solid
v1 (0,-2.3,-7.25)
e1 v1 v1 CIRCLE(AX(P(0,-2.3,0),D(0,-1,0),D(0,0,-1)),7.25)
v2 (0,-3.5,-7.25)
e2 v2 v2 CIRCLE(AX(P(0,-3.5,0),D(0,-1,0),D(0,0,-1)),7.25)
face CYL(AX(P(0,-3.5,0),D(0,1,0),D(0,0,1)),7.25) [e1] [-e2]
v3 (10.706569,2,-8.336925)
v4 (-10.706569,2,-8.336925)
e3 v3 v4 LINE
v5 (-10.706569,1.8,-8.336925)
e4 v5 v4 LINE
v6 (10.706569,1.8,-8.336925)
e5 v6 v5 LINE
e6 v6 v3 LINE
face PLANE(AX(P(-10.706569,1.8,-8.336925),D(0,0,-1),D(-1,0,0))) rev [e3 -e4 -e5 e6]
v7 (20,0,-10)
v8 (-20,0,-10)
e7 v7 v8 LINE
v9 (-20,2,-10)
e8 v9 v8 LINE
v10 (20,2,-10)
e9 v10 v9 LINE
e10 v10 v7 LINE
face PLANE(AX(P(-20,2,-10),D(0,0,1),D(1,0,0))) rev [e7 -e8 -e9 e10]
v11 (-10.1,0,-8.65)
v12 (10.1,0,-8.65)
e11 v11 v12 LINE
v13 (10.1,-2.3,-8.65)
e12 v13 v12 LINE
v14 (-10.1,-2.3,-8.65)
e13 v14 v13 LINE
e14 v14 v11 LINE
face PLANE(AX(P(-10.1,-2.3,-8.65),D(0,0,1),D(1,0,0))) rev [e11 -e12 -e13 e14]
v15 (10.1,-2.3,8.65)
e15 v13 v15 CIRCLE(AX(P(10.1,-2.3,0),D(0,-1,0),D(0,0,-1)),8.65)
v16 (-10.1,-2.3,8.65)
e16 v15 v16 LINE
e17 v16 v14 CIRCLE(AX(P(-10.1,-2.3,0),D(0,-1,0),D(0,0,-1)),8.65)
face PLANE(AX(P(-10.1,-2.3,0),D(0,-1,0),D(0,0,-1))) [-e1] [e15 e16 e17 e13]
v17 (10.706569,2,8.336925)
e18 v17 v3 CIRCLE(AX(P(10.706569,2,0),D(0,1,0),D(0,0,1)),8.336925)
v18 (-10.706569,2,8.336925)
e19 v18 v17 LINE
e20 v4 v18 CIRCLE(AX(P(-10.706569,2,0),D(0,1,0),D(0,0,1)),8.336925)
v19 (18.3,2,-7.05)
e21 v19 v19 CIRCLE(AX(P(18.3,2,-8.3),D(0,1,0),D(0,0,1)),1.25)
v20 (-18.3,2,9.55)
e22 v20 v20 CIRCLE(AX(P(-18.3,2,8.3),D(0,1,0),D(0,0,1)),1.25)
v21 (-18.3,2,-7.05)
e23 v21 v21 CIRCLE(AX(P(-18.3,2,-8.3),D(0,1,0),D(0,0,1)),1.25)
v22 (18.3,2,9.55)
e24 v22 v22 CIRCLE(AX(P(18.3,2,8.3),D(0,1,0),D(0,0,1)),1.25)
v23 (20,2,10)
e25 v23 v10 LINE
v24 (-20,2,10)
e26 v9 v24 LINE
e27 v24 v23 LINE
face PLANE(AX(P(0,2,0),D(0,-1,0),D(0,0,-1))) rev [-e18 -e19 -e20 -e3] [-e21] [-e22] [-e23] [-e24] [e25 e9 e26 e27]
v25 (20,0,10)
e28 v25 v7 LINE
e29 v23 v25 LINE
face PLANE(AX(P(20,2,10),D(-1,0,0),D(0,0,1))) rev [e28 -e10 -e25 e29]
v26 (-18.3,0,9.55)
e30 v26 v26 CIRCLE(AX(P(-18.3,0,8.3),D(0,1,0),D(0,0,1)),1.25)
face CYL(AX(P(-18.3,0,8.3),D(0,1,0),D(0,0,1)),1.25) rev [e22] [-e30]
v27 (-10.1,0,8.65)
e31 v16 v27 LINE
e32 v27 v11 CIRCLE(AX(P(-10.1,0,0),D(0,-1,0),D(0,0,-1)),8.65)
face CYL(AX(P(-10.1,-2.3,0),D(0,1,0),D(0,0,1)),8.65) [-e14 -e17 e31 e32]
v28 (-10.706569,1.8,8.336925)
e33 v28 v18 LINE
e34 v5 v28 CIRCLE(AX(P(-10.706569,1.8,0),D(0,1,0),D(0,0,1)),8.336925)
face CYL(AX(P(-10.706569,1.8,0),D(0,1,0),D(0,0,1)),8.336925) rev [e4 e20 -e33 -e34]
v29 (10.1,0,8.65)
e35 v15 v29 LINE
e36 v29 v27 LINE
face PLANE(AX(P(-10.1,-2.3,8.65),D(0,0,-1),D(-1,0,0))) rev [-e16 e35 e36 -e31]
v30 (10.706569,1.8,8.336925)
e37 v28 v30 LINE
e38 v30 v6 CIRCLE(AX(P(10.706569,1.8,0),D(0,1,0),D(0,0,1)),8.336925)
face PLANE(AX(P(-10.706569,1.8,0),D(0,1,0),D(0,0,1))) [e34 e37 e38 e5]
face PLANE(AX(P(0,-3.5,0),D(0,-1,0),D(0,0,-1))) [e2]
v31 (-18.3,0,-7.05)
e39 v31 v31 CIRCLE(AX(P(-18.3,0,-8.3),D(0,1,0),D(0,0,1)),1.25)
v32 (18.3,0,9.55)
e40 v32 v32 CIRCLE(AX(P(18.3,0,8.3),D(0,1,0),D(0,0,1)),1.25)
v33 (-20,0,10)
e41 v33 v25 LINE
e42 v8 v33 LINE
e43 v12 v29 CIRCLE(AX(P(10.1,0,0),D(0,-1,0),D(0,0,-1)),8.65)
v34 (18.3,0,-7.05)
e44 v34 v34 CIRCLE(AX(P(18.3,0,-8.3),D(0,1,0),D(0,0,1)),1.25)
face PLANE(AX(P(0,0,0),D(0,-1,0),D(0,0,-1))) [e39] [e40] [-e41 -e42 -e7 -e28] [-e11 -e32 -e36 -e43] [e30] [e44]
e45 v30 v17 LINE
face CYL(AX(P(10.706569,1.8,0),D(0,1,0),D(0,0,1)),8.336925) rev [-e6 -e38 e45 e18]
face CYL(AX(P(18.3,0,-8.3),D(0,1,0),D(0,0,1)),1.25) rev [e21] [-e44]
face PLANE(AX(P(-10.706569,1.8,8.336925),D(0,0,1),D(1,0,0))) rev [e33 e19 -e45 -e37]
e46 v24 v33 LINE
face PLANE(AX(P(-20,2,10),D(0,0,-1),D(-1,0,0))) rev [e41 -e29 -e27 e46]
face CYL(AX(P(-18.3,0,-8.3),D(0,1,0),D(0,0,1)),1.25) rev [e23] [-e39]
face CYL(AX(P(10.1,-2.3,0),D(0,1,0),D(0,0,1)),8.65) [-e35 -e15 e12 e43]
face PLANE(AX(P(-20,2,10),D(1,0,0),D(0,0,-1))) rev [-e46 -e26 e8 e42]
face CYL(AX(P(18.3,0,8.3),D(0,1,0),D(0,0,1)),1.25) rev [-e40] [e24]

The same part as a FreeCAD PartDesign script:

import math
import FreeCAD as App
import Part
import Sketcher
Q = App.Units.Quantity

doc = App.newDocument("Part")
body = doc.addObject("PartDesign::Body", "Body")

# Sketch on XZ plane
sketch1 = doc.addObject("Sketcher::SketchObject", "Sketch")
body.addObject(sketch1)
sketch1.AttachmentSupport = (doc.XZ_Plane, [""])
sketch1.MapMode = "FlatFace"
sketch1.addGeometry(Part.LineSegment(App.Vector(-20, -10, 0), App.Vector(-20, 10, 0)), False)
sketch1.addGeometry(Part.LineSegment(App.Vector(-20, 10, 0), App.Vector(20, 10, 0)), False)
sketch1.addGeometry(Part.LineSegment(App.Vector(20, 10, 0), App.Vector(20, -10, 0)), False)
sketch1.addGeometry(Part.LineSegment(App.Vector(20, -10, 0), App.Vector(-20, -10, 0)), False)
sketch1.addConstraint(Sketcher.Constraint("Coincident", 0, 2, 1, 1))
sketch1.addConstraint(Sketcher.Constraint("Coincident", 1, 2, 2, 1))
sketch1.addConstraint(Sketcher.Constraint("Coincident", 2, 2, 3, 1))
sketch1.addConstraint(Sketcher.Constraint("Coincident", 3, 2, 0, 1))
sketch1.addConstraint(Sketcher.Constraint("Vertical", 0))
sketch1.addConstraint(Sketcher.Constraint("Horizontal", 1))
sketch1.addConstraint(Sketcher.Constraint("Vertical", 2))
sketch1.addConstraint(Sketcher.Constraint("Horizontal", 3))
sketch1.addConstraint(Sketcher.Constraint("Symmetric", 0, 2, 2, 2, -1, 1))
sketch1.addConstraint(Sketcher.Constraint("DistanceX", 1, 1, 1, 2, Q("40 mm")))
sketch1.addConstraint(Sketcher.Constraint("DistanceY", 0, 1, 0, 2, Q("20 mm")))
pad1 = doc.addObject("PartDesign::Pad", "Pad")
body.addObject(pad1)
pad1.Profile = sketch1
pad1.Length = 2
pad1.Reversed = True

# Sketch on XZ plane
sketch2 = doc.addObject("Sketcher::SketchObject", "Sketch001")
body.addObject(sketch2)
sketch2.AttachmentSupport = (doc.XZ_Plane, [""])
sketch2.MapMode = "FlatFace"
sketch2.AttachmentOffset = App.Placement(App.Vector(0, 0, -2), App.Rotation())
sketch2.addGeometry(Part.Circle(App.Vector(-18.3, -8.3, 0), App.Vector(0, 0, 1), 1.2), False)
sketch2.addGeometry(Part.Circle(App.Vector(18.3, -8.3, 0), App.Vector(0, 0, 1), 1.2), False)
sketch2.addGeometry(Part.Circle(App.Vector(-18.3, 8.3, 0), App.Vector(0, 0, 1), 1.2), False)
sketch2.addGeometry(Part.Circle(App.Vector(18.3, 8.3, 0), App.Vector(0, 0, 1), 1.2), False)
sketch2.addConstraint(Sketcher.Constraint("Equal", 0, 1))
sketch2.addConstraint(Sketcher.Constraint("Equal", 1, 2))
sketch2.addConstraint(Sketcher.Constraint("Equal", 2, 3))
sketch2.addConstraint(Sketcher.Constraint("Symmetric", 1, 3, 2, 3, -1, 1))
sketch2.addConstraint(Sketcher.Constraint("Symmetric", 0, 3, 3, 3, -1, 1))
sketch2.addConstraint(Sketcher.Constraint("Symmetric", 0, 3, 1, 3, -2))
sketch2.addConstraint(Sketcher.Constraint("Diameter", 0, Q("2.5 mm")))
sketch2.addConstraint(Sketcher.Constraint("DistanceX", 0, 3, -1, 1, Q("18.3 mm")))
sketch2.addConstraint(Sketcher.Constraint("DistanceY", 0, 3, -1, 1, Q("8.3 mm")))
pocket1 = doc.addObject("PartDesign::Pocket", "Pocket")
body.addObject(pocket1)
pocket1.Profile = sketch2
pocket1.Type = "ThroughAll"
pocket1.Reversed = True

# Sketch on XZ plane
sketch3 = doc.addObject("Sketcher::SketchObject", "Sketch002")
body.addObject(sketch3)
sketch3.AttachmentSupport = (doc.XZ_Plane, [""])
sketch3.MapMode = "FlatFace"
sketch3.addGeometry(Part.LineSegment(App.Vector(10, 9, 0), App.Vector(-10, 9, 0)), False)
sketch3.addGeometry(Part.ArcOfCircle(Part.Circle(App.Vector(-10, 0, 0), App.Vector(0, 0, 1), 9), math.radians(90), math.radians(270)), False)
sketch3.addGeometry(Part.LineSegment(App.Vector(-10, -9, 0), App.Vector(10, -9, 0)), False)
sketch3.addGeometry(Part.ArcOfCircle(Part.Circle(App.Vector(10, 0, 0), App.Vector(0, 0, 1), 9), math.radians(-90), math.radians(90)), False)
sketch3.addConstraint(Sketcher.Constraint("Tangent", 0, 2, 1, 1))
sketch3.addConstraint(Sketcher.Constraint("Tangent", 1, 2, 2, 1))
sketch3.addConstraint(Sketcher.Constraint("Tangent", 2, 2, 3, 1))
sketch3.addConstraint(Sketcher.Constraint("Tangent", 3, 2, 0, 1))
sketch3.addConstraint(Sketcher.Constraint("Horizontal", 0))
sketch3.addConstraint(Sketcher.Constraint("Horizontal", 2))
sketch3.addConstraint(Sketcher.Constraint("Symmetric", 1, 3, 3, 3, -1, 1))
sketch3.addConstraint(Sketcher.Constraint("Radius", 1, Q("8.65 mm")))
sketch3.addConstraint(Sketcher.Constraint("DistanceX", 0, 2, 0, 1, Q("20.2 mm")))
pad2 = doc.addObject("PartDesign::Pad", "Pad001")
body.addObject(pad2)
pad2.Profile = sketch3
pad2.Length = 2.3

# Sketch on XZ plane
sketch4 = doc.addObject("Sketcher::SketchObject", "Sketch003")
body.addObject(sketch4)
sketch4.AttachmentSupport = (doc.XZ_Plane, [""])
sketch4.MapMode = "FlatFace"
sketch4.AttachmentOffset = App.Placement(App.Vector(0, 0, 2.3), App.Rotation())
sketch4.addGeometry(Part.Circle(App.Vector(0, 0, 0), App.Vector(0, 0, 1), 7), False)
sketch4.addConstraint(Sketcher.Constraint("Coincident", 0, 3, -1, 1))
sketch4.addConstraint(Sketcher.Constraint("Diameter", 0, Q("14.5 mm")))
pad3 = doc.addObject("PartDesign::Pad", "Pad002")
body.addObject(pad3)
pad3.Profile = sketch4
pad3.Length = 1.2

# Sketch on XZ plane
sketch5 = doc.addObject("Sketcher::SketchObject", "Sketch004")
body.addObject(sketch5)
sketch5.AttachmentSupport = (doc.XZ_Plane, [""])
sketch5.MapMode = "FlatFace"
sketch5.AttachmentOffset = App.Placement(App.Vector(0, 0, -2), App.Rotation())
sketch5.addGeometry(Part.LineSegment(App.Vector(11, -8, 0), App.Vector(-11, -8, 0)), False)
sketch5.addGeometry(Part.ArcOfCircle(Part.Circle(App.Vector(-11, 0, 0), App.Vector(0, 0, 1), 8), math.radians(90), math.radians(270)), False)
sketch5.addGeometry(Part.LineSegment(App.Vector(-11, 8, 0), App.Vector(11, 8, 0)), False)
sketch5.addGeometry(Part.ArcOfCircle(Part.Circle(App.Vector(11, 0, 0), App.Vector(0, 0, 1), 8), math.radians(-90), math.radians(90)), False)
sketch5.addConstraint(Sketcher.Constraint("Tangent", 0, 2, 1, 2))
sketch5.addConstraint(Sketcher.Constraint("Tangent", 1, 1, 2, 1))
sketch5.addConstraint(Sketcher.Constraint("Tangent", 2, 2, 3, 2))
sketch5.addConstraint(Sketcher.Constraint("Tangent", 3, 1, 0, 1))
sketch5.addConstraint(Sketcher.Constraint("Horizontal", 0))
sketch5.addConstraint(Sketcher.Constraint("Horizontal", 2))
sketch5.addConstraint(Sketcher.Constraint("Symmetric", 1, 3, 3, 3, -1, 1))
sketch5.addConstraint(Sketcher.Constraint("Radius", 1, Q("8.336925 mm")))
sketch5.addConstraint(Sketcher.Constraint("DistanceX", 0, 2, 0, 1, Q("21.413137 mm")))
pocket2 = doc.addObject("PartDesign::Pocket", "Pocket001")
body.addObject(pocket2)
pocket2.Profile = sketch5
pocket2.Length = 0.2
pocket2.Reversed = True

doc.recompute()
